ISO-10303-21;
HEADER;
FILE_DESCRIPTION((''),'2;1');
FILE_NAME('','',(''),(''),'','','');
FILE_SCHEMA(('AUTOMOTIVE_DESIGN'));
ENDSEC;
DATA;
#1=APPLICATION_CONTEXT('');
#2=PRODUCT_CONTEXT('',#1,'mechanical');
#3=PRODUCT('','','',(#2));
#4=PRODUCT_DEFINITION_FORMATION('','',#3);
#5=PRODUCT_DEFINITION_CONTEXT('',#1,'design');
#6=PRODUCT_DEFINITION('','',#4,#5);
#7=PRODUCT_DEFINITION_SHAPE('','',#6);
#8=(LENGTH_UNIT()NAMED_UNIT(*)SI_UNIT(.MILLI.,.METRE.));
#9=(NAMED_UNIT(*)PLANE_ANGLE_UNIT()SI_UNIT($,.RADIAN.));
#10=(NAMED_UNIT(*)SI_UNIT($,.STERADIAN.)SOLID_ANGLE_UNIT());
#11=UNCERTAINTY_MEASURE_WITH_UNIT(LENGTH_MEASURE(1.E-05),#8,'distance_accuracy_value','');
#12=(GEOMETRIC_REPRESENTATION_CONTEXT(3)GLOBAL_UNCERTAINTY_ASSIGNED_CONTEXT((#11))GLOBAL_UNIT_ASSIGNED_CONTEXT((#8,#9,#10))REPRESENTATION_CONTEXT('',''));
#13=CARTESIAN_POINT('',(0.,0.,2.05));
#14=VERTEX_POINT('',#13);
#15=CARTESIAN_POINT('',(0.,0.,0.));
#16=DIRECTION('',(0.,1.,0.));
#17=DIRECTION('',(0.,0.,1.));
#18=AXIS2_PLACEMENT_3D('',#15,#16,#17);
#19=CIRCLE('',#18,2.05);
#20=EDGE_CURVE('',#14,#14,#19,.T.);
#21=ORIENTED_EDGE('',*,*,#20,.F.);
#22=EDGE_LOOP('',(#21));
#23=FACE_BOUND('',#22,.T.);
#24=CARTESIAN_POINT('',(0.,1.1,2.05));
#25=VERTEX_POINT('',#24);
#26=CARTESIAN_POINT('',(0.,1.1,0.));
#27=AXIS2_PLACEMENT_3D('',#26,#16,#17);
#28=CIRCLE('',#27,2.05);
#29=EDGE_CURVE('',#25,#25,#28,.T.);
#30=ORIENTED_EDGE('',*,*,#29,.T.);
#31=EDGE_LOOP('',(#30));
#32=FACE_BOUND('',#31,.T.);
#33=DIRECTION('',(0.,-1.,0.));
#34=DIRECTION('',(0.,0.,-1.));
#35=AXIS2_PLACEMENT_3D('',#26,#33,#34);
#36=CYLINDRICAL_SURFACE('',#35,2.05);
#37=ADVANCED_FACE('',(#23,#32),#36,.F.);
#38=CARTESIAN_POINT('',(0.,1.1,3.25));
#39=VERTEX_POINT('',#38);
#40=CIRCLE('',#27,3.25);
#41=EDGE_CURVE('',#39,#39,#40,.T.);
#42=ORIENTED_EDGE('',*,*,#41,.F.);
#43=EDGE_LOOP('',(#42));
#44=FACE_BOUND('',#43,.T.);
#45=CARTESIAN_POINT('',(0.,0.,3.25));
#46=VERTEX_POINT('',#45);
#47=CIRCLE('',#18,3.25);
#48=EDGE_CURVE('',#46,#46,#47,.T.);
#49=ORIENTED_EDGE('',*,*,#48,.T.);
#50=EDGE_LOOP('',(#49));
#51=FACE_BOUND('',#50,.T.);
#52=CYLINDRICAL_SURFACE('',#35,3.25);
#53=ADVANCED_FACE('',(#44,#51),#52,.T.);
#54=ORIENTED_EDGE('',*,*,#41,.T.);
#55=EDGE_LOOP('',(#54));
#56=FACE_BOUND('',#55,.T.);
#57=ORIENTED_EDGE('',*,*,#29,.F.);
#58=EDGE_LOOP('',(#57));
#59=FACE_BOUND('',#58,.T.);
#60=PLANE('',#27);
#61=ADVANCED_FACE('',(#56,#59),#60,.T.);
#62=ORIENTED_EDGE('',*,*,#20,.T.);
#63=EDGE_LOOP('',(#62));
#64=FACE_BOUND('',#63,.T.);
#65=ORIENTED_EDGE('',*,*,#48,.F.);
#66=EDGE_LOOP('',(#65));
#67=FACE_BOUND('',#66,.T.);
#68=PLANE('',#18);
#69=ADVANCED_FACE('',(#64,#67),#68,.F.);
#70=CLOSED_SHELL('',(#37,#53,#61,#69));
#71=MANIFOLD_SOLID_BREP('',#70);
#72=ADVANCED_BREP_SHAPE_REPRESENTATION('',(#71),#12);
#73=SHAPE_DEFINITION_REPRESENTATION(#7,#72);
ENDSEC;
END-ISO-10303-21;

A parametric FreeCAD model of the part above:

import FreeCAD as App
import Part
import Sketcher
from FreeCAD import Vector
Q = App.Units.Quantity

doc = App.newDocument("Part")
body = doc.addObject("PartDesign::Body", "Body")

# Sketch on XZ plane
sketch1 = body.newObject("Sketcher::SketchObject", "Sketch")
sketch1.AttachmentSupport = (doc.getObject("XZ_Plane"), [""])
sketch1.MapMode = "FlatFace"
sketch1.addGeometry([
    Part.Circle(Vector(0, 0, 0), Vector(0, 0, 1), 3.2),
    Part.Circle(Vector(0, 0, 0), Vector(0, 0, 1), 2),
], False)
sketch1.addConstraint([
    Sketcher.Constraint("Coincident", 0, 3, -1, 1),
    Sketcher.Constraint("Coincident", 1, 3, -1, 1),
    Sketcher.Constraint("Diameter", 0, Q("6.5 mm")),
    Sketcher.Constraint("Diameter", 1, Q("4.1 mm")),
])
pad1 = body.newObject("PartDesign::Pad", "Pad")
pad1.Profile = sketch1
pad1.Length = 1.1
pad1.Reversed = True

doc.recompute()
